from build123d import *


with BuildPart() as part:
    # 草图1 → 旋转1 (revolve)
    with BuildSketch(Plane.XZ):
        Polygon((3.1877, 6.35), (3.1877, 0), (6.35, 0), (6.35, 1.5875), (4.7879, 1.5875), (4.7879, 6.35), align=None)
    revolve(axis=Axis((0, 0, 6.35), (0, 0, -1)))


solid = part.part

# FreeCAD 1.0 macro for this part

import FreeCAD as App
import Part
import Sketcher
from FreeCAD import Vector
Q = App.Units.Quantity


def add_polygon(sketch, points):
    """Adds a closed chain of lines whose ends are joined by coincident constraints."""
    first, n = sketch.GeometryCount, len(points)
    for a, b in zip(points, points[1:] + points[:1]):
        sketch.addGeometry(Part.LineSegment(App.Vector(*a, 0), App.Vector(*b, 0)), False)
    for i in range(n):
        sketch.addConstraint(Sketcher.Constraint("Coincident", first + i, 2, first + (i + 1) % n, 1))

doc = App.newDocument("Part")
body = doc.addObject("PartDesign::Body", "Body")

# Sketch on XZ plane
sketch1 = body.newObject("Sketcher::SketchObject", "Sketch")
sketch1.AttachmentSupport = (doc.getObject("XZ_Plane"), [""])
sketch1.MapMode = "FlatFace"
add_polygon(sketch1, [(3.2, 6.3), (3.2, 0), (6.3, 0), (6.3, 1.6), (4.8, 1.6), (4.8, 6.3)])  # lines 0-5
sketch1.addConstraint(Sketcher.Constraint("Vertical", 0))
sketch1.addConstraint(Sketcher.Constraint("Horizontal", 1))
sketch1.addConstraint(Sketcher.Constraint("Vertical", 2))
sketch1.addConstraint(Sketcher.Constraint("Horizontal", 3))
sketch1.addConstraint(Sketcher.Constraint("Vertical", 4))
sketch1.addConstraint(Sketcher.Constraint("Horizontal", 5))
sketch1.addConstraint(Sketcher.Constraint("PointOnObject", 0, 2, -1))
sketch1.addConstraint(Sketcher.Constraint("DistanceY", 0, 2, 0, 1, Q("0.25 in")))
sketch1.addConstraint(Sketcher.Constraint("DistanceX", 5, 2, 5, 1, Q("0.063 in")))
sketch1.addConstraint(Sketcher.Constraint("DistanceY", 2, 1, 2, 2, Q("0.0625 in")))
sketch1.addConstraint(Sketcher.Constraint("DistanceX", -1, 1, 1, 2, Q("0.25 in")))
sketch1.addConstraint(Sketcher.Constraint("DistanceX", 1, 1, 1, 2, Q("0.1245 in")))
revolution = body.newObject("PartDesign::Revolution", "Revolution")
revolution.Profile = sketch1
revolution.ReferenceAxis = (sketch1, ["V_Axis"])
revolution.Angle = 360

doc.recompute()
